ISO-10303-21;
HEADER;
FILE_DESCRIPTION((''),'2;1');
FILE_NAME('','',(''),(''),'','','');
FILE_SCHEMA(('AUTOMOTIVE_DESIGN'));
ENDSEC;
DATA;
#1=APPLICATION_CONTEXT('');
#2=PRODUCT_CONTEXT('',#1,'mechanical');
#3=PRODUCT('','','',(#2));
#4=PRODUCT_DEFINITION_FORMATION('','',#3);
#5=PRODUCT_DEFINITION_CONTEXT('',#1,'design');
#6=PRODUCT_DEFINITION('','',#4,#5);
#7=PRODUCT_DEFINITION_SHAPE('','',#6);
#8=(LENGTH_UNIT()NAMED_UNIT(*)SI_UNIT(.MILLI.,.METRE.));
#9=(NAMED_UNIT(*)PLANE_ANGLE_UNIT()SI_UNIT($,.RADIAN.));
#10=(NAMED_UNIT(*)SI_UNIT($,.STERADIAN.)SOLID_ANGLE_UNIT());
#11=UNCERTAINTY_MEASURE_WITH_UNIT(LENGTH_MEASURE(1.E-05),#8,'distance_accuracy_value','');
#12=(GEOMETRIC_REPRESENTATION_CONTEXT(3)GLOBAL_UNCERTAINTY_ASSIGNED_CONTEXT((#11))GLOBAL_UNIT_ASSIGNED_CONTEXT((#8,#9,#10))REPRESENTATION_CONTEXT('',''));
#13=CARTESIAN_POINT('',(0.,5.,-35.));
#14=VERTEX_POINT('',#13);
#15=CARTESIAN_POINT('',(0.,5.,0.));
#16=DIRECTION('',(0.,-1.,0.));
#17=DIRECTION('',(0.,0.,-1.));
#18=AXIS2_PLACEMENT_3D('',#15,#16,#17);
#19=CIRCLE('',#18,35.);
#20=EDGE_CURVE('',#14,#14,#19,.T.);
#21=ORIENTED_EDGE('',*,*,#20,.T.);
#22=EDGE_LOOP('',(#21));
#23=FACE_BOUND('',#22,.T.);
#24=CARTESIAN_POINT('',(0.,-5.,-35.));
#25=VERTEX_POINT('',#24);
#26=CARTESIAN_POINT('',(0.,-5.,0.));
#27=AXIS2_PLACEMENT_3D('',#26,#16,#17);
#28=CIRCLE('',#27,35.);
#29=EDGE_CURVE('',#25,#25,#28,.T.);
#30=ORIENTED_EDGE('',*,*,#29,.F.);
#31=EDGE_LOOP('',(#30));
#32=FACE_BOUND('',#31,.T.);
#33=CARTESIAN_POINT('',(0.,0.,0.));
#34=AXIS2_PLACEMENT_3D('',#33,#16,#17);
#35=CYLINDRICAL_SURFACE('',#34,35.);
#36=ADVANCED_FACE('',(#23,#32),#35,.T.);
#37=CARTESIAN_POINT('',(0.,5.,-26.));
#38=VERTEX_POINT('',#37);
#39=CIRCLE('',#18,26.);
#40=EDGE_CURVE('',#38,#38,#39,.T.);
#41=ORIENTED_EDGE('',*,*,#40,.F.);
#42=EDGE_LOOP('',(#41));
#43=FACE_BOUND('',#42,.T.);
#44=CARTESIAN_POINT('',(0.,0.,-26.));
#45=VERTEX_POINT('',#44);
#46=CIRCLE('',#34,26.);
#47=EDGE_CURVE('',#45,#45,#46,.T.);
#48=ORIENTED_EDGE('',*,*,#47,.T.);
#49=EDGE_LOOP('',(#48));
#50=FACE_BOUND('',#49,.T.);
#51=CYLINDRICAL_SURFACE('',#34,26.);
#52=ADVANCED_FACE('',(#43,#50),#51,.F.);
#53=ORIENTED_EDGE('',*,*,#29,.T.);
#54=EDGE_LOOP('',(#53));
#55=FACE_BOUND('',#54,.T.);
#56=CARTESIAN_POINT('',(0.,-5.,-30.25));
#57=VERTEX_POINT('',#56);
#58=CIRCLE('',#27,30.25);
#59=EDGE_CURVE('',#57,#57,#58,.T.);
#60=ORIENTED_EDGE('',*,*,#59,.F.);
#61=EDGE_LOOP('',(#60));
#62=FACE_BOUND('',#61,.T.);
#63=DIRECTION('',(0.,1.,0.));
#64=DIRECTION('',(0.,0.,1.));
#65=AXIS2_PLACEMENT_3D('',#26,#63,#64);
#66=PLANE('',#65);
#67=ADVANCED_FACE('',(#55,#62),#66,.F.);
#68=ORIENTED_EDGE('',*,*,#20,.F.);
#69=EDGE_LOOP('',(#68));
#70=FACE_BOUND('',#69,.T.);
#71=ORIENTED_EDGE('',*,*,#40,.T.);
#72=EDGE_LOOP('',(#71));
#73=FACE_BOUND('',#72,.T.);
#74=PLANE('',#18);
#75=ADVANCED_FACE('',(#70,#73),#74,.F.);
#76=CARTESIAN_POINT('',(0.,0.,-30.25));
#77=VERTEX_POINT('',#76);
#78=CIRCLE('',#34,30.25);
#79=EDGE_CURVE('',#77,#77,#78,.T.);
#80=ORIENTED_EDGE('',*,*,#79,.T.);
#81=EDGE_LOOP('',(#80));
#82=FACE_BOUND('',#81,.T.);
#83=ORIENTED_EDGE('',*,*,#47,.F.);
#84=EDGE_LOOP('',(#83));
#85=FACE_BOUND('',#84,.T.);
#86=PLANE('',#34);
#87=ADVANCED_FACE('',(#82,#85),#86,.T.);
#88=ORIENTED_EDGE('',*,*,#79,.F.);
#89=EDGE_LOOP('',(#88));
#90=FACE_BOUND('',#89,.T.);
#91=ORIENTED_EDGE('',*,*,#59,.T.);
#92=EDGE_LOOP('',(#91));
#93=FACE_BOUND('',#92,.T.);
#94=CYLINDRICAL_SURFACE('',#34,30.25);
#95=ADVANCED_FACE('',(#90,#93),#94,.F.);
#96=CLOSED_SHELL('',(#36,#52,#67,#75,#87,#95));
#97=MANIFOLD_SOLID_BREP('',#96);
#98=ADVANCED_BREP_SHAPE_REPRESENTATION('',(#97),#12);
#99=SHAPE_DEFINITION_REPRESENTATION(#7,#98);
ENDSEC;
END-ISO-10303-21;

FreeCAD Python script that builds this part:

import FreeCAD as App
import Part
import Sketcher
from FreeCAD import Vector

doc = App.newDocument("Part")
params = doc.addObject("Spreadsheet::Sheet", "Params")
for row, (alias, value) in enumerate([
    ("sketch1_width", "9 mm"),
    ("sketch1_height", "10 mm"),
    ("sketch1_width2", "4.75 mm"),
    ("revolution_angle", "360 deg"),
], start=1):
    params.set(f"A{row}", alias)
    params.set(f"B{row}", "=" + value)
    params.setAlias(f"B{row}", alias)

body = doc.addObject("PartDesign::Body", "Body")

sketch1 = doc.addObject("Sketcher::SketchObject", "Sketch")
body.addObject(sketch1)
sketch1.AttachmentSupport = (doc.XY_Plane, [""])
sketch1.MapMode = "FlatFace"
sketch1.addGeometry([
    Part.LineSegment(Vector(-35, 5, 0), Vector(-35, -5, 0)),
    Part.LineSegment(Vector(-35, -5, 0), Vector(-30.2, -5, 0)),
    Part.LineSegment(Vector(-30.2, -5, 0), Vector(-30.2, 0, 0)),
    Part.LineSegment(Vector(-30.2, 0, 0), Vector(-26, 0, 0)),
    Part.LineSegment(Vector(-26, 0, 0), Vector(-26, 5, 0)),
    Part.LineSegment(Vector(-26, 5, 0), Vector(-35, 5, 0)),
], False)
sketch1.addConstraint([
    Sketcher.Constraint("Coincident", 0, 2, 1, 1),
    Sketcher.Constraint("Coincident", 1, 2, 2, 1),
    Sketcher.Constraint("Coincident", 2, 2, 3, 1),
    Sketcher.Constraint("Coincident", 3, 2, 4, 1),
    Sketcher.Constraint("Coincident", 4, 2, 5, 1),
    Sketcher.Constraint("Coincident", 5, 2, 0, 1),
    Sketcher.Constraint("Vertical", 0),
    Sketcher.Constraint("Horizontal", 1),
    Sketcher.Constraint("Vertical", 2),
    Sketcher.Constraint("Horizontal", 3),
    Sketcher.Constraint("Vertical", 4),
    Sketcher.Constraint("Horizontal", 5),
    Sketcher.Constraint("PointOnObject", 2, 2, -1),
    Sketcher.Constraint("Equal", 2, 4),
    Sketcher.Constraint("DistanceX", 5, 2, 5, 1, 9.0),
    Sketcher.Constraint("DistanceY", 0, 2, 0, 1, 10.0),
    Sketcher.Constraint("DistanceX", 0, 2, -1, 1, 35.0),
    Sketcher.Constraint("DistanceX", 1, 1, 1, 2, 4.75),
])
sketch1.setExpression("Constraints[14]", "Params.sketch1_width")
sketch1.setExpression("Constraints[15]", "Params.sketch1_height")
sketch1.setExpression("Constraints[17]", "Params.sketch1_width2")
revolution = doc.addObject("PartDesign::Revolution", "Revolution")
body.addObject(revolution)
revolution.Profile = sketch1
revolution.ReferenceAxis = (sketch1, ["V_Axis"])
revolution.setExpression("Angle", "Params.revolution_angle")

doc.recompute()
